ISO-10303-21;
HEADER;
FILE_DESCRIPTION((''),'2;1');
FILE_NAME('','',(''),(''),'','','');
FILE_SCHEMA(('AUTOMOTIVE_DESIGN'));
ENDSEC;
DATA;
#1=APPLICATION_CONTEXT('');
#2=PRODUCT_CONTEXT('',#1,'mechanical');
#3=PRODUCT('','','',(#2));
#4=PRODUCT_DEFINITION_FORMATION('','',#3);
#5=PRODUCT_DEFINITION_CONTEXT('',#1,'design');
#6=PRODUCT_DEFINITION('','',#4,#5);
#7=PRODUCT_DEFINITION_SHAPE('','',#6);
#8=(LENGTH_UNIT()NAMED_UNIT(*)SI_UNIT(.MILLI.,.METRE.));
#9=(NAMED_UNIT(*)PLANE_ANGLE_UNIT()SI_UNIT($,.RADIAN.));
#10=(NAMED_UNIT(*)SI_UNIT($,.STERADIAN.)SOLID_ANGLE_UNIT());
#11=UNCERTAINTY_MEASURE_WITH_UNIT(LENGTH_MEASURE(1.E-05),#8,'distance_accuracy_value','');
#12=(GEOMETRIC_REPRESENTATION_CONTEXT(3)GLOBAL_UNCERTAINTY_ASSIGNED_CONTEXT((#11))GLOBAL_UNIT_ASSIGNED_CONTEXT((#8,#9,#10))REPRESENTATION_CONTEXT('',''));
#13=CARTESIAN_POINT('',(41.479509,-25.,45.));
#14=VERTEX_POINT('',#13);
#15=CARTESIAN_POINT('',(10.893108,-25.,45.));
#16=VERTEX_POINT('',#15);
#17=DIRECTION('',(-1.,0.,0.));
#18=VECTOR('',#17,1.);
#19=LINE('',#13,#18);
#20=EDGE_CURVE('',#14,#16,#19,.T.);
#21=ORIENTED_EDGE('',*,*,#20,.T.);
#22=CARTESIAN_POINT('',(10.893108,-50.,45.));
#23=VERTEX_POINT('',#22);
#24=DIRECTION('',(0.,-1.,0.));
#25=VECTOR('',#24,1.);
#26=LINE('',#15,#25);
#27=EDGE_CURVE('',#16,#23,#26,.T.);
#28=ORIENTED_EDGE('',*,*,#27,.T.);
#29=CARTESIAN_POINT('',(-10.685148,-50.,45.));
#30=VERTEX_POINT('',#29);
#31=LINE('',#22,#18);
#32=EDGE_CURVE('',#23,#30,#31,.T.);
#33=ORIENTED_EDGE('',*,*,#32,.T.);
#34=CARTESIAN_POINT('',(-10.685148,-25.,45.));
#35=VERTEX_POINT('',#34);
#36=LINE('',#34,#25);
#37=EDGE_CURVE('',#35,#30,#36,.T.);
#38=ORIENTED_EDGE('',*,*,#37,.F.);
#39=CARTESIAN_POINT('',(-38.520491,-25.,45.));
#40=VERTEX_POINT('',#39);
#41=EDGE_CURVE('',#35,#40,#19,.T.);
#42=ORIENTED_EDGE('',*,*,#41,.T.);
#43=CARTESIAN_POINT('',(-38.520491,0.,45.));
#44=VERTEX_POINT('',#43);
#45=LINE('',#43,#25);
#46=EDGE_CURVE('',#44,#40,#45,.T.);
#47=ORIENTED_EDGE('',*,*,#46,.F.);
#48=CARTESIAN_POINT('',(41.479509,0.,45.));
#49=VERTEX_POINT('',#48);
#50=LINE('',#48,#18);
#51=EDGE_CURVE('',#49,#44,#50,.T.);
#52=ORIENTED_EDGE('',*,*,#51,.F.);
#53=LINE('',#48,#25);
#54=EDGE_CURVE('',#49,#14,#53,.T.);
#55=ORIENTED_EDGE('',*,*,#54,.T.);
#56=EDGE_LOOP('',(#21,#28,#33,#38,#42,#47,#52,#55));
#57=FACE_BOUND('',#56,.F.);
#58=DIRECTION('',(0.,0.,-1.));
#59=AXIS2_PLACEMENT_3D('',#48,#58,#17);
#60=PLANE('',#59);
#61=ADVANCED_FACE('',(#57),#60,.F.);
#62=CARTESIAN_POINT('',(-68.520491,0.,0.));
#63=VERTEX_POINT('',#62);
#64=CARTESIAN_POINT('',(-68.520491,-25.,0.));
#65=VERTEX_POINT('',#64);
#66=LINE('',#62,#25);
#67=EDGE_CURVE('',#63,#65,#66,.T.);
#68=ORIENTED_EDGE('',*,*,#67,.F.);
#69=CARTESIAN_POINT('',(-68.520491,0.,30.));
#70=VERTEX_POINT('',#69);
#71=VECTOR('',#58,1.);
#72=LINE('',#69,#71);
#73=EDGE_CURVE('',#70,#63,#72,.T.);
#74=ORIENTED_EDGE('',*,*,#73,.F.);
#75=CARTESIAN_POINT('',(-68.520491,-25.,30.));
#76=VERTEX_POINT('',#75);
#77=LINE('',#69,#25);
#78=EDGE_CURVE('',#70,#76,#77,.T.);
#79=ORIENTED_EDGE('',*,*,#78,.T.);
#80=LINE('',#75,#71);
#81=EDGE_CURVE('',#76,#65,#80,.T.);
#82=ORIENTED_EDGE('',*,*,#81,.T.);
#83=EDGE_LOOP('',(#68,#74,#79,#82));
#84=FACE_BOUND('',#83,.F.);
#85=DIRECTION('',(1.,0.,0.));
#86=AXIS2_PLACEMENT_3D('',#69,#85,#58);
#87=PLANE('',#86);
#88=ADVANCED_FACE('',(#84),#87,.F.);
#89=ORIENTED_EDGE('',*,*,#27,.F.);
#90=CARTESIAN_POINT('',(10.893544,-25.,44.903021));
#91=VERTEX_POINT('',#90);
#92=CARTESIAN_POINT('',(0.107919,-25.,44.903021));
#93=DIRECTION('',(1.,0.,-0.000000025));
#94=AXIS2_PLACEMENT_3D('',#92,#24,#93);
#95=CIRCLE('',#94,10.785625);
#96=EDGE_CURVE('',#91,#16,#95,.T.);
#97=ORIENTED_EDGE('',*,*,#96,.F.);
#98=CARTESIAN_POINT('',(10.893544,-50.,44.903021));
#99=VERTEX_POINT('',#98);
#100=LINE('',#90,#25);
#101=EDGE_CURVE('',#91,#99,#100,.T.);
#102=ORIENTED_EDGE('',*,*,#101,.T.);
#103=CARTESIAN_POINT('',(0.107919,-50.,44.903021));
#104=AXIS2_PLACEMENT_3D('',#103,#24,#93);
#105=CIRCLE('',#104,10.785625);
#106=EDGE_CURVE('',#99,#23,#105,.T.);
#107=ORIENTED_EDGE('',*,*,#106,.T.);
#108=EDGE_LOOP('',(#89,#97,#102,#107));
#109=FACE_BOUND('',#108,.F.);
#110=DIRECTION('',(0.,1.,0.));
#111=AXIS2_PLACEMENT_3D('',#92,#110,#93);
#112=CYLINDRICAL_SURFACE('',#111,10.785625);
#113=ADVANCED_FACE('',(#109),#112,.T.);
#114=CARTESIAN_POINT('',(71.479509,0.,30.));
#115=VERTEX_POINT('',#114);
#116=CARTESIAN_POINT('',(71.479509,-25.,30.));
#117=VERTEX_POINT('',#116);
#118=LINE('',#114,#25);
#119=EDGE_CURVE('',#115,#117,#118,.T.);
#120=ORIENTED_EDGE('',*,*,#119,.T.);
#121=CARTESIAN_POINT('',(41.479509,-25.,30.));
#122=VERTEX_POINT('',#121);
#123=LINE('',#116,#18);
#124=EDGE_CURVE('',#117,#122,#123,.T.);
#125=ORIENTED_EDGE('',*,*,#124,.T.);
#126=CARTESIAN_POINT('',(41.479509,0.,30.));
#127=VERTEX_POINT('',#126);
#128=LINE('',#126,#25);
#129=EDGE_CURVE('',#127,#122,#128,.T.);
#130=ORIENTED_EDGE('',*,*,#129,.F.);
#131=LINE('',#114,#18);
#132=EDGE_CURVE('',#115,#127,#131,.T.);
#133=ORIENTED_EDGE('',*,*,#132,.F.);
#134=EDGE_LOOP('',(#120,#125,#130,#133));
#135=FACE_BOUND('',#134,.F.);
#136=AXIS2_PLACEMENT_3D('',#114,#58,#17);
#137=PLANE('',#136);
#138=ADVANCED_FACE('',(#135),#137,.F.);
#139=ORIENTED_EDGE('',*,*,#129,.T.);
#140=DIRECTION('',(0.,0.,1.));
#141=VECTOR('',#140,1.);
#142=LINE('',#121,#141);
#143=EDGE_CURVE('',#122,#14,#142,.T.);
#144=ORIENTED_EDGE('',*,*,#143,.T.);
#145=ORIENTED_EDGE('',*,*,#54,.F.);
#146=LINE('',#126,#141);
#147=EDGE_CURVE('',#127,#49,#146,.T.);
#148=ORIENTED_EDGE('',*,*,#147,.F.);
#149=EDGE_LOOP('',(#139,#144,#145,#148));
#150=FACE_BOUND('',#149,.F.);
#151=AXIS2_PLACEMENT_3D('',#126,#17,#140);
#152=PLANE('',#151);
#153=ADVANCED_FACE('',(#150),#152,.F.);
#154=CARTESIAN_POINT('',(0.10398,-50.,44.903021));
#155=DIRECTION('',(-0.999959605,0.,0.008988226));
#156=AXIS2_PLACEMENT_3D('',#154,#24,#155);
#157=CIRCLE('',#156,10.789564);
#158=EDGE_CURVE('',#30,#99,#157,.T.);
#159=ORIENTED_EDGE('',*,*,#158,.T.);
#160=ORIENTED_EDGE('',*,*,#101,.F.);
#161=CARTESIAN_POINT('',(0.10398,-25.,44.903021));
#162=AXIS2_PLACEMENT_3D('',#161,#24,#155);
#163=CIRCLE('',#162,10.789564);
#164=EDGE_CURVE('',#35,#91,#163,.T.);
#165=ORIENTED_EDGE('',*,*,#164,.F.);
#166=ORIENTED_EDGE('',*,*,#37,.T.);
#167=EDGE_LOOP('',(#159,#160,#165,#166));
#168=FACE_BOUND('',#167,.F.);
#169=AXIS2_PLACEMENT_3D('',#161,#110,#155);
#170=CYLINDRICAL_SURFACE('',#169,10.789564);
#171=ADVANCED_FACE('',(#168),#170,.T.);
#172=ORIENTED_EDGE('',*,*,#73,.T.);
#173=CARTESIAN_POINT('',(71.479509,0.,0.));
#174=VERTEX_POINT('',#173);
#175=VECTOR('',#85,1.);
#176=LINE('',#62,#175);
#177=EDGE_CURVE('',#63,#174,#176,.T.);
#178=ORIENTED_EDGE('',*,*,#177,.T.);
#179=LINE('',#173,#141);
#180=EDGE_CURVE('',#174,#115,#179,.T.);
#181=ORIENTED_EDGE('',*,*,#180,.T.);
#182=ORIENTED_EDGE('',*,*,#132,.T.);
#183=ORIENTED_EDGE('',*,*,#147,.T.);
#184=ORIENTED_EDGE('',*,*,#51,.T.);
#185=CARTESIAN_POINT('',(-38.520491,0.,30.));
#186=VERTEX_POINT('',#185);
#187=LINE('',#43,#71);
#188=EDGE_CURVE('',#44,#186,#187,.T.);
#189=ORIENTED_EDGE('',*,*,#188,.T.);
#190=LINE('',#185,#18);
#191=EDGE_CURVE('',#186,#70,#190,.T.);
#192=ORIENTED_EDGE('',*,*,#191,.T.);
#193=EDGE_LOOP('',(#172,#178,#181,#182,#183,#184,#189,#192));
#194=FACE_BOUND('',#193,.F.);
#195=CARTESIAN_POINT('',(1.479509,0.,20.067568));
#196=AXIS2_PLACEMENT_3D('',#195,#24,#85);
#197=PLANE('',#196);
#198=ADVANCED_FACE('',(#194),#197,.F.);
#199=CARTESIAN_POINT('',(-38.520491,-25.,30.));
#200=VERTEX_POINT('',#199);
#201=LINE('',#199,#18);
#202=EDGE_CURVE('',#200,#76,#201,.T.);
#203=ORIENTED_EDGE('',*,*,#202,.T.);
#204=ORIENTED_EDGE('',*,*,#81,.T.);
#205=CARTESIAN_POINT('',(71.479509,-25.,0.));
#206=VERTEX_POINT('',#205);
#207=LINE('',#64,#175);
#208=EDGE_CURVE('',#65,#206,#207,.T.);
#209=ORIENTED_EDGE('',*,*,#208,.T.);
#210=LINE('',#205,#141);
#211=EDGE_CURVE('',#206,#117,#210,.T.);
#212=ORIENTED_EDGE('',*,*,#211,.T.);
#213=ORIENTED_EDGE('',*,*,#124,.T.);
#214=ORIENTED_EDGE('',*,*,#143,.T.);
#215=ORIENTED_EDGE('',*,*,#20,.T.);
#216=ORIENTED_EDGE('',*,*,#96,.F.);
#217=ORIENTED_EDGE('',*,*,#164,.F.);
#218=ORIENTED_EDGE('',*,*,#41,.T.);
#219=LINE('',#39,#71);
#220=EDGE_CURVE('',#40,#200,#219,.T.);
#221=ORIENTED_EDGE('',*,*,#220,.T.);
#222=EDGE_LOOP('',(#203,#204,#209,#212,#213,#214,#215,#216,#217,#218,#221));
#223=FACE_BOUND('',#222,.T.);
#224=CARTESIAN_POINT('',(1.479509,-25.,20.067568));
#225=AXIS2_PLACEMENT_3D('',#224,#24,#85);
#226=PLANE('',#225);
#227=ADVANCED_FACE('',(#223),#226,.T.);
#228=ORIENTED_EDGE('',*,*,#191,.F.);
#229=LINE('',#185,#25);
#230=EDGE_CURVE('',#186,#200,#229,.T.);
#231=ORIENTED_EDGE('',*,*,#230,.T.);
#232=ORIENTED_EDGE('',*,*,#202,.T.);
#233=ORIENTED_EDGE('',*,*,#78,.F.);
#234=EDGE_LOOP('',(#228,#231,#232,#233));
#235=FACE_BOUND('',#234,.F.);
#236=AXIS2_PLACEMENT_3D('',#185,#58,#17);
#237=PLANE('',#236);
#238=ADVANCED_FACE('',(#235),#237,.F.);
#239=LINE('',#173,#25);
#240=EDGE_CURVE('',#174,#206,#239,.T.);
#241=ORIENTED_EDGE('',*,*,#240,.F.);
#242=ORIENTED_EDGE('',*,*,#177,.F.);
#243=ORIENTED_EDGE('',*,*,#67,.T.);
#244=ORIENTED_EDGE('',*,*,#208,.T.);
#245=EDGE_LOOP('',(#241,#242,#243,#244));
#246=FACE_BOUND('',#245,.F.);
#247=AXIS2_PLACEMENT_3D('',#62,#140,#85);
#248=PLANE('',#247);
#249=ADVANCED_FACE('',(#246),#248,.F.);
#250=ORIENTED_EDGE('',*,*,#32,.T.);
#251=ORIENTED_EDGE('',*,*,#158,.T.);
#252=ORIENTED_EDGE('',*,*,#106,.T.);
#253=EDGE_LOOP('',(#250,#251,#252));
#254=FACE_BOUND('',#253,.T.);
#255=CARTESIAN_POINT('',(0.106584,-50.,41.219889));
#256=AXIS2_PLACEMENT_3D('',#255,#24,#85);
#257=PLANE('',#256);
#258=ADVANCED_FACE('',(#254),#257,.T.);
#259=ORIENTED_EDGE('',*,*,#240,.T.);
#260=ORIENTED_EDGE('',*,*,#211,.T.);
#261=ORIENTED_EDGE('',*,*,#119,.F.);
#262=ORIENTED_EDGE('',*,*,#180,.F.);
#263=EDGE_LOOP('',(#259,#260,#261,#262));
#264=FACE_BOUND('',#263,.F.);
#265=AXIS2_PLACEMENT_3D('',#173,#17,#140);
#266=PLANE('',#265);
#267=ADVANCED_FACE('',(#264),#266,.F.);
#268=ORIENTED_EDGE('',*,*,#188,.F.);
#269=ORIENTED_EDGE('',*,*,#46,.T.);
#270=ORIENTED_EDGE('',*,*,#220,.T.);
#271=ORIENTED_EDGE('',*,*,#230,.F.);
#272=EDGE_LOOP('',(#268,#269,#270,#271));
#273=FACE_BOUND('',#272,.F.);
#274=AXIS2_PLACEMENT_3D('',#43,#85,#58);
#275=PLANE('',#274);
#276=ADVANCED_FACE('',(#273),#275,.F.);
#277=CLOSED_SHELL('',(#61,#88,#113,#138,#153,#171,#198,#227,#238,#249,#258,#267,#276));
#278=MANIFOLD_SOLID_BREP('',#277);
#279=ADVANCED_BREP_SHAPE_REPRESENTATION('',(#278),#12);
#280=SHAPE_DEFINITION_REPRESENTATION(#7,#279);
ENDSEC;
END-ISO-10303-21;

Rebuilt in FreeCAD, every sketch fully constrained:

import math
import FreeCAD as App
import Part
import Sketcher

V = App.Vector
Q = App.Units.Quantity

doc = App.newDocument("Part")
body = doc.addObject("PartDesign::Body", "Body")

# Sketch on XZ plane
sketch1 = body.newObject("Sketcher::SketchObject", "Sketch")
sketch1.AttachmentSupport = (doc.getObject("XZ_Plane"), [""])
sketch1.MapMode = "FlatFace"
sketch1.addGeometry(Part.LineSegment(V(-68.520491, 30, 0), V(-68.520491, 0, 0)), False)
sketch1.addGeometry(Part.LineSegment(V(-68.520491, 0, 0), V(71.479509, 0, 0)), False)
sketch1.addGeometry(Part.LineSegment(V(71.479509, 0, 0), V(71.479509, 30, 0)), False)
sketch1.addGeometry(Part.LineSegment(V(71.479509, 30, 0), V(41.479509, 30, 0)), False)
sketch1.addGeometry(Part.LineSegment(V(41.479509, 30, 0), V(41.479509, 45, 0)), False)
sketch1.addGeometry(Part.LineSegment(V(41.479509, 45, 0), V(-38.520491, 45, 0)), False)
sketch1.addGeometry(Part.LineSegment(V(-38.520491, 45, 0), V(-38.520491, 30, 0)), False)
sketch1.addGeometry(Part.LineSegment(V(-38.520491, 30, 0), V(-68.520491, 30, 0)), False)
sketch1.addConstraint(Sketcher.Constraint("Coincident", 0, 2, 1, 1))
sketch1.addConstraint(Sketcher.Constraint("Coincident", 1, 2, 2, 1))
sketch1.addConstraint(Sketcher.Constraint("Coincident", 2, 2, 3, 1))
sketch1.addConstraint(Sketcher.Constraint("Coincident", 3, 2, 4, 1))
sketch1.addConstraint(Sketcher.Constraint("Coincident", 4, 2, 5, 1))
sketch1.addConstraint(Sketcher.Constraint("Coincident", 5, 2, 6, 1))
sketch1.addConstraint(Sketcher.Constraint("Coincident", 6, 2, 7, 1))
sketch1.addConstraint(Sketcher.Constraint("Coincident", 7, 2, 0, 1))
sketch1.addConstraint(Sketcher.Constraint("Vertical", 0))
sketch1.addConstraint(Sketcher.Constraint("Horizontal", 1))
sketch1.addConstraint(Sketcher.Constraint("Vertical", 2))
sketch1.addConstraint(Sketcher.Constraint("Horizontal", 3))
sketch1.addConstraint(Sketcher.Constraint("Vertical", 4))
sketch1.addConstraint(Sketcher.Constraint("Horizontal", 5))
sketch1.addConstraint(Sketcher.Constraint("Vertical", 6))
sketch1.addConstraint(Sketcher.Constraint("Horizontal", 7))
sketch1.addConstraint(Sketcher.Constraint("PointOnObject", 0, 2, -1))
sketch1.addConstraint(Sketcher.Constraint("Horizontal", 3, 2, 6, 2))
sketch1.addConstraint(Sketcher.Constraint("Equal", 3, 7))
sketch1.addConstraint(Sketcher.Constraint("Equal", 7, 0))
sketch1.addConstraint(Sketcher.Constraint("DistanceX", 1, 1, 1, 2, Q("140 mm")))
sketch1.addConstraint(Sketcher.Constraint("DistanceX", 3, 2, 3, 1, Q("30 mm")))
sketch1.addConstraint(Sketcher.Constraint("DistanceY", 4, 1, 4, 2, Q("15 mm")))
sketch1.addConstraint(Sketcher.Constraint("DistanceX", 0, 2, -1, 1, Q("68.520491 mm")))
pad1 = body.newObject("PartDesign::Pad", "Pad")
pad1.Profile = sketch1
pad1.Length = 25

# Sketch on XZ plane
sketch2 = body.newObject("Sketcher::SketchObject", "Sketch001")
sketch2.AttachmentSupport = (doc.getObject("XZ_Plane"), [""])
sketch2.MapMode = "FlatFace"
sketch2.AttachmentOffset = App.Placement(V(0, 0, 25), App.Rotation())
sketch2.addGeometry(Part.ArcOfCircle(Part.Circle(V(0.10398, 44.903021, 0), V(0, 0, 1), 10.789564), math.radians(179.485006), math.radians(360)), False)
sketch2.addGeometry(Part.ArcOfCircle(Part.Circle(V(0.107919, 44.903021, 0), V(0, 0, 1), 10.785625), math.radians(-0.000001), math.radians(0.515181)), False)
sketch2.addGeometry(Part.LineSegment(V(10.893108, 45, 0), V(-10.685148, 45, 0)), False)
sketch2.addConstraint(Sketcher.Constraint("Tangent", 0, 2, 1, 1))
sketch2.addConstraint(Sketcher.Constraint("Coincident", 1, 2, 2, 1))
sketch2.addConstraint(Sketcher.Constraint("Coincident", 2, 2, 0, 1))
sketch2.addConstraint(Sketcher.Constraint("Horizontal", 2))
sketch2.addConstraint(Sketcher.Constraint("Horizontal", 1, 3, 0, 2))
sketch2.addConstraint(Sketcher.Constraint("DistanceY", -1, 1, 1, 2, Q("45 mm")))
sketch2.addConstraint(Sketcher.Constraint("Radius", 0, Q("10.789564 mm")))
sketch2.addConstraint(Sketcher.Constraint("Radius", 1, Q("10.785625 mm")))
sketch2.addConstraint(Sketcher.Constraint("DistanceX", 2, 2, 2, 1, Q("21.578256 mm")))
sketch2.addConstraint(Sketcher.Constraint("DistanceX", -1, 1, 0, 3, Q("0.10398 mm")))
pad2 = body.newObject("PartDesign::Pad", "Pad001")
pad2.Profile = sketch2
pad2.Length = 25

doc.recompute()
